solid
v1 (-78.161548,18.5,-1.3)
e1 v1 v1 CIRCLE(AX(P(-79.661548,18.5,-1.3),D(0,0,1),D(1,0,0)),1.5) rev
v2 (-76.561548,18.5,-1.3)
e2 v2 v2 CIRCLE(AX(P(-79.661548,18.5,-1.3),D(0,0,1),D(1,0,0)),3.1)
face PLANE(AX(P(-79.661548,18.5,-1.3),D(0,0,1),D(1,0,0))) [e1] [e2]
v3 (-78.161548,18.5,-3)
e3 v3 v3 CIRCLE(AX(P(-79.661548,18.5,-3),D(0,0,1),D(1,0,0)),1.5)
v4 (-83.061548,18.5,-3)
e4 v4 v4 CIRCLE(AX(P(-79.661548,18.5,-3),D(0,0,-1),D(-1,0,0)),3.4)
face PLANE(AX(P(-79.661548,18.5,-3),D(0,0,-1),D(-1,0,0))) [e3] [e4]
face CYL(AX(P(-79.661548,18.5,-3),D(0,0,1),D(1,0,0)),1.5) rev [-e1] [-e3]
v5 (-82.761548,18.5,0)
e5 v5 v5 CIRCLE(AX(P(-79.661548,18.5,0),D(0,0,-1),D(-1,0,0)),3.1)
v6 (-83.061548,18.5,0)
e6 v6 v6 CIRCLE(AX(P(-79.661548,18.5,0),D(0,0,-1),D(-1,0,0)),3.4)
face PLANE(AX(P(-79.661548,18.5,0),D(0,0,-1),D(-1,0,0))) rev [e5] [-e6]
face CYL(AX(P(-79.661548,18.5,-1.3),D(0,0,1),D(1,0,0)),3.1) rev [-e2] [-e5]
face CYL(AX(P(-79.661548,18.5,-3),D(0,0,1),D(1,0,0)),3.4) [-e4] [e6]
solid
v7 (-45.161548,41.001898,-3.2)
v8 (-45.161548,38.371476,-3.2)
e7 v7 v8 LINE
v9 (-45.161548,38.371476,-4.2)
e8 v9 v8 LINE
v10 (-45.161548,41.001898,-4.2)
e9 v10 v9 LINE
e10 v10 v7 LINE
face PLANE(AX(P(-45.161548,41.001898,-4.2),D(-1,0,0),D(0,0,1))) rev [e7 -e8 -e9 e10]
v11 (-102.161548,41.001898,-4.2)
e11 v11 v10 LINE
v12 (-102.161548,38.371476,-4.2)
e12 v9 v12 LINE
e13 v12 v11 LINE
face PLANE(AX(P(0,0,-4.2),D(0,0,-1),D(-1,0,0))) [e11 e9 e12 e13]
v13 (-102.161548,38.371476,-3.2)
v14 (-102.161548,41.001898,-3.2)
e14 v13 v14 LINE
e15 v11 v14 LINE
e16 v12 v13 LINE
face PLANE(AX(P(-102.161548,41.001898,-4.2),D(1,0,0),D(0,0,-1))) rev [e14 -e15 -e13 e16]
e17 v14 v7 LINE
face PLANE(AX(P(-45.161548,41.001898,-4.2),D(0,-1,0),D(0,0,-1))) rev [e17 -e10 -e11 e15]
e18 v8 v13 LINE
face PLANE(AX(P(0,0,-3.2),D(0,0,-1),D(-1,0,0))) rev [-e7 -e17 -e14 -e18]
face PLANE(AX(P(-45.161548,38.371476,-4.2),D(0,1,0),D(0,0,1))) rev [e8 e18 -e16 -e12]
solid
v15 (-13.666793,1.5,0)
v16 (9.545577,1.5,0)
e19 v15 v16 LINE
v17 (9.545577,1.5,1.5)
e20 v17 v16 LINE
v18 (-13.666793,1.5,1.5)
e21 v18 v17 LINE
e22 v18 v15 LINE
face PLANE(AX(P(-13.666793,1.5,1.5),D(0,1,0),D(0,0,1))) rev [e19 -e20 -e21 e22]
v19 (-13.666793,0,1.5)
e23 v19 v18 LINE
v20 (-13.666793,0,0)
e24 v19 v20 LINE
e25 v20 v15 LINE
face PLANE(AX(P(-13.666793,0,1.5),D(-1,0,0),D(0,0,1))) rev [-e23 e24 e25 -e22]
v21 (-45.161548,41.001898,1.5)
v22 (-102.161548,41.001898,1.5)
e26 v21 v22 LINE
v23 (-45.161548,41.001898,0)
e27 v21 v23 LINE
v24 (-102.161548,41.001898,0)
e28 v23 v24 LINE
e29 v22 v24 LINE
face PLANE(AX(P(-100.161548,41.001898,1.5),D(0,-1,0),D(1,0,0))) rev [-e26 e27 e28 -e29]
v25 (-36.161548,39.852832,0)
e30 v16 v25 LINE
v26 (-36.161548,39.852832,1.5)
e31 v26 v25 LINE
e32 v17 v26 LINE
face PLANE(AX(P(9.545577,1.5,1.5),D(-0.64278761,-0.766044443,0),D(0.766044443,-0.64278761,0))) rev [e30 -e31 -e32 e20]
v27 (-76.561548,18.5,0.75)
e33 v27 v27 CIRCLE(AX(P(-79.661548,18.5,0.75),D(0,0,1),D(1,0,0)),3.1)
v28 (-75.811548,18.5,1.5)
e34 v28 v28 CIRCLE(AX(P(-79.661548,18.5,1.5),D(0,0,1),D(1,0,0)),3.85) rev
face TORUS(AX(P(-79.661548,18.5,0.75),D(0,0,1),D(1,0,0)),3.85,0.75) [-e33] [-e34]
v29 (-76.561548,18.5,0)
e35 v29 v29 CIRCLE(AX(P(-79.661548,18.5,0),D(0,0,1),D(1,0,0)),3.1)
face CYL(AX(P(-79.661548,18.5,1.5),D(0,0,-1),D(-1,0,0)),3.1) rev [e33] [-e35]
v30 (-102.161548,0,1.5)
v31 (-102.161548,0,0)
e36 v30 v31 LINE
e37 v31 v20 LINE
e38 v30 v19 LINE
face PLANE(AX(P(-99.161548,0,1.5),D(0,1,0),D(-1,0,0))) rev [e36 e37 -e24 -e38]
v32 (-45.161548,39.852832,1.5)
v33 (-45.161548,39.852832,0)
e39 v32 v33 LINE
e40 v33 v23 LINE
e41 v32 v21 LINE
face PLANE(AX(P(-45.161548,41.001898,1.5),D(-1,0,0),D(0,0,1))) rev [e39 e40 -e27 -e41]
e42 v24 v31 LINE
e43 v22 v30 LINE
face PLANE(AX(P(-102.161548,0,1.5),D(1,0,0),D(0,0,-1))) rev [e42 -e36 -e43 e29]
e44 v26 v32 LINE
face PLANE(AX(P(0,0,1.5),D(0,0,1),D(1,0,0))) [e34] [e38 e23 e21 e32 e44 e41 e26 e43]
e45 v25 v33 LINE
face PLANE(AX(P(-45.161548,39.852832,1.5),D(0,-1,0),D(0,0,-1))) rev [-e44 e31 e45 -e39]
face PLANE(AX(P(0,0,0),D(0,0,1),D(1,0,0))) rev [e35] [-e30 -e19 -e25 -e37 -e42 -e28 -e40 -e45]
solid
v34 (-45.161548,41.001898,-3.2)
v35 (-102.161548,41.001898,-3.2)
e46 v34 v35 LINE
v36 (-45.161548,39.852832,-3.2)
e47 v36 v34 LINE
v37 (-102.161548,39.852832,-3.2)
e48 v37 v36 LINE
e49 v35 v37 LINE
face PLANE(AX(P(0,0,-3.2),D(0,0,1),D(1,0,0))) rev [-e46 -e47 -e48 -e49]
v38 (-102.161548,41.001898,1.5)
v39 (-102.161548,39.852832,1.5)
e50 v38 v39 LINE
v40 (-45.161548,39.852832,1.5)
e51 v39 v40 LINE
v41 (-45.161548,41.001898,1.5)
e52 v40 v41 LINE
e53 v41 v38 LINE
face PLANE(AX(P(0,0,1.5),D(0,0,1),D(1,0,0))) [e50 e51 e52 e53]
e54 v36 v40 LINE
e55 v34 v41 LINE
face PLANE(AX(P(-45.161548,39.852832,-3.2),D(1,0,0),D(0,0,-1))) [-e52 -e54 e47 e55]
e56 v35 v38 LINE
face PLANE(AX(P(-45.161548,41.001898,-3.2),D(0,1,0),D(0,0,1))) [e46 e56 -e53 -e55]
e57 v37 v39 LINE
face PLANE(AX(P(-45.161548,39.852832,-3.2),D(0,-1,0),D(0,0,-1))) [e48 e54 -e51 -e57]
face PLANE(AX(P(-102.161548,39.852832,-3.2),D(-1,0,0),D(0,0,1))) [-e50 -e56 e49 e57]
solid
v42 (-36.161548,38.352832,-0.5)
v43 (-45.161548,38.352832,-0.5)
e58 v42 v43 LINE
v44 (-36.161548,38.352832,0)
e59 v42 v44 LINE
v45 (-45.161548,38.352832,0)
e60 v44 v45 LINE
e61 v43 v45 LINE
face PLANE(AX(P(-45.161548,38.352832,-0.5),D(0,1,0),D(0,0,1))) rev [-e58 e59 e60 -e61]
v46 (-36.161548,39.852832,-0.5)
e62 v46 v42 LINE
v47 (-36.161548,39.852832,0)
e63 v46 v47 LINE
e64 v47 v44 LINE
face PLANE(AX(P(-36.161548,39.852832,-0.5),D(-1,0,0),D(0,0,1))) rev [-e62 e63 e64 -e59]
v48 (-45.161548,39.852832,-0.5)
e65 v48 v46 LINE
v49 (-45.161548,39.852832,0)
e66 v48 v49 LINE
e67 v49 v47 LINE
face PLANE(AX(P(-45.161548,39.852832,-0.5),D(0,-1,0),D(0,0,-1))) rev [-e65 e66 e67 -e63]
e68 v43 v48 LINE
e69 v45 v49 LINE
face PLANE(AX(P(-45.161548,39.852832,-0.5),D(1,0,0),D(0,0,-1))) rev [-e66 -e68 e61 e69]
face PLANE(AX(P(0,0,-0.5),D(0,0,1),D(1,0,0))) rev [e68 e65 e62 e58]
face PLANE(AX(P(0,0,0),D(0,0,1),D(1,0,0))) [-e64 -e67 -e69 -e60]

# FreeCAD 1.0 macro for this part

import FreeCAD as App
import Part
import Sketcher

V = App.Vector
Q = App.Units.Quantity


def edges_at(feature, points):
    """Names of the edges that pass closest to the given points."""
    edges = feature.Shape.Edges
    near = lambda p: min(range(len(edges)), key=lambda i: edges[i].distToShape(Part.Vertex(*p))[0])
    return sorted({f"Edge{near(p) + 1}" for p in points})


def add_polygon(sketch, points):
    """Adds a closed chain of lines whose ends are joined by coincident constraints."""
    first, n = sketch.GeometryCount, len(points)
    for a, b in zip(points, points[1:] + points[:1]):
        sketch.addGeometry(Part.LineSegment(App.Vector(*a, 0), App.Vector(*b, 0)), False)
    for i in range(n):
        sketch.addConstraint(Sketcher.Constraint("Coincident", first + i, 2, first + (i + 1) % n, 1))

doc = App.newDocument("Part")
body = doc.addObject("PartDesign::Body", "Body")

# Sketch on XY plane
sketch1 = body.newObject("Sketcher::SketchObject", "Sketch")
sketch1.AttachmentSupport = (doc.getObject("XY_Plane"), [""])
sketch1.MapMode = "FlatFace"
add_polygon(sketch1, [(-13.7, 0), (-13.7, 1.5), (9.5, 1.5), (-36.2, 39.9), (-45.2, 39.9), (-45.2, 41), (-102.2, 41), (-102.2, 0)])  # lines 0-7
sketch1.addGeometry(Part.Circle(V(-79.7, 18.5, 0), V(0, 0, 1), 3.1), False)  # 8
sketch1.addConstraint(Sketcher.Constraint("Vertical", 0))
sketch1.addConstraint(Sketcher.Constraint("Horizontal", 1))
sketch1.addConstraint(Sketcher.Constraint("Horizontal", 3))
sketch1.addConstraint(Sketcher.Constraint("Vertical", 4))
sketch1.addConstraint(Sketcher.Constraint("Horizontal", 5))
sketch1.addConstraint(Sketcher.Constraint("Vertical", 6))
sketch1.addConstraint(Sketcher.Constraint("Horizontal", 7))
sketch1.addConstraint(Sketcher.Constraint("PointOnObject", 6, 2, -1))
sketch1.addConstraint(Sketcher.Constraint("Diameter", 8, 6.2))
sketch1.addConstraint(Sketcher.Constraint("DistanceX", 3, 2, 3, 1, 9.0))
sketch1.addConstraint(Sketcher.Constraint("DistanceX", 5, 2, 5, 1, 57.0))
sketch1.addConstraint(Sketcher.Constraint("Angle", 2, Q("140 deg")))
sketch1.addConstraint(Sketcher.Constraint("DistanceY", 0, 1, 0, 2, 1.5))
sketch1.addConstraint(Sketcher.Constraint("DistanceY", 0, 2, 8, 3, 17.0))
sketch1.addConstraint(Sketcher.Constraint("DistanceX", 8, 3, 2, 2, 43.5))
sketch1.addConstraint(Sketcher.Constraint("DistanceY", 6, 2, 6, 1, 41.001898))
sketch1.addConstraint(Sketcher.Constraint("DistanceX", 1, 1, 1, 2, 23.21237))
sketch1.addConstraint(Sketcher.Constraint("DistanceX", 7, 1, 7, 2, 88.494755))
sketch1.addConstraint(Sketcher.Constraint("DistanceX", 8, 3, -1, 1, 79.661548))
pad1 = body.newObject("PartDesign::Pad", "Pad")
pad1.Profile = sketch1
pad1.Length = 1.5
doc.recompute()

fillet = body.newObject("PartDesign::Fillet", "Fillet")
fillet.Base = (pad1, edges_at(pad1, [(-82.762, 18.5, 1.5)]))
fillet.Radius = 0.75
body2 = doc.addObject("PartDesign::Body", "Body001")

# Sketch on XY plane
sketch2 = body2.newObject("Sketcher::SketchObject", "Sketch001")
sketch2.AttachmentSupport = (doc.getObject("XY_Plane001"), [""])
sketch2.MapMode = "FlatFace"
sketch2.addGeometry(Part.Circle(V(-79.7, 18.5, 0), V(0, 0, 1), 3.4), False)
sketch2.addConstraint(Sketcher.Constraint("Diameter", 0, 6.8))
sketch2.addConstraint(Sketcher.Constraint("DistanceY", -1, 1, 0, 3, 18.5))
sketch2.addConstraint(Sketcher.Constraint("DistanceX", 0, 3, -1, 1, 79.661548))
pad2 = body2.newObject("PartDesign::Pad", "Pad001")
pad2.Profile = sketch2
pad2.Length = 3
pad2.Reversed = True

# Sketch on XY plane
sketch3 = body2.newObject("Sketcher::SketchObject", "Sketch002")
sketch3.AttachmentSupport = (doc.getObject("XY_Plane001"), [""])
sketch3.MapMode = "FlatFace"
sketch3.addGeometry(Part.Circle(V(-79.7, 18.5, 0), V(0, 0, 1), 1.5), False)
sketch3.addConstraint(Sketcher.Constraint("Diameter", 0, 3.0))
sketch3.addConstraint(Sketcher.Constraint("DistanceY", -1, 1, 0, 3, 18.5))
sketch3.addConstraint(Sketcher.Constraint("DistanceX", 0, 3, -1, 1, 79.661548))
pocket1 = body2.newObject("PartDesign::Pocket", "Pocket")
pocket1.Profile = sketch3
pocket1.Length = 3

# Sketch on XY plane
sketch4 = body2.newObject("Sketcher::SketchObject", "Sketch003")
sketch4.AttachmentSupport = (doc.getObject("XY_Plane001"), [""])
sketch4.MapMode = "FlatFace"
sketch4.AttachmentOffset = App.Placement(V(0, 0, -1.3), App.Rotation())
sketch4.addGeometry(Part.Circle(V(-79.7, 18.5, 0), V(0, 0, 1), 3.1), False)
sketch4.addConstraint(Sketcher.Constraint("Diameter", 0, 6.2))
sketch4.addConstraint(Sketcher.Constraint("DistanceY", -1, 1, 0, 3, 18.5))
sketch4.addConstraint(Sketcher.Constraint("DistanceX", 0, 3, -1, 1, 79.661548))
pocket2 = body2.newObject("PartDesign::Pocket", "Pocket001")
pocket2.Profile = sketch4
pocket2.Length = 2.8
pocket2.Reversed = True
body3 = doc.addObject("PartDesign::Body", "Body002")

# Sketch on XY plane
sketch5 = body3.newObject("Sketcher::SketchObject", "Sketch004")
sketch5.AttachmentSupport = (doc.getObject("XY_Plane002"), [""])
sketch5.MapMode = "FlatFace"
sketch5.AttachmentOffset = App.Placement(V(0, 0, 1.5), App.Rotation())
add_polygon(sketch5, [(-102.2, 41), (-102.2, 39.9), (-45.2, 39.9), (-45.2, 41)])  # lines 0-3
sketch5.addConstraint(Sketcher.Constraint("Vertical", 0))
sketch5.addConstraint(Sketcher.Constraint("Horizontal", 1))
sketch5.addConstraint(Sketcher.Constraint("Vertical", 2))
sketch5.addConstraint(Sketcher.Constraint("Horizontal", 3))
sketch5.addConstraint(Sketcher.Constraint("DistanceX", 1, 1, 1, 2, 57.0))
sketch5.addConstraint(Sketcher.Constraint("DistanceY", -1, 1, 2, 2, 41.001898))
sketch5.addConstraint(Sketcher.Constraint("DistanceY", 0, 2, 0, 1, 1.149067))
sketch5.addConstraint(Sketcher.Constraint("DistanceX", 0, 2, -1, 1, 102.161548))
pad3 = body3.newObject("PartDesign::Pad", "Pad002")
pad3.Profile = sketch5
pad3.Length = 4.7
pad3.Reversed = True
body4 = doc.addObject("PartDesign::Body", "Body003")

# Sketch on XY plane
sketch6 = body4.newObject("Sketcher::SketchObject", "Sketch005")
sketch6.AttachmentSupport = (doc.getObject("XY_Plane003"), [""])
sketch6.MapMode = "FlatFace"
add_polygon(sketch6, [(-36.2, 39.9), (-36.2, 38.4), (-45.2, 38.4), (-45.2, 39.9)])  # lines 0-3
sketch6.addConstraint(Sketcher.Constraint("Vertical", 0))
sketch6.addConstraint(Sketcher.Constraint("Horizontal", 1))
sketch6.addConstraint(Sketcher.Constraint("Vertical", 2))
sketch6.addConstraint(Sketcher.Constraint("Horizontal", 3))
sketch6.addConstraint(Sketcher.Constraint("DistanceX", 1, 2, 1, 1, 9.0))
sketch6.addConstraint(Sketcher.Constraint("DistanceY", 0, 2, 0, 1, 1.5))
sketch6.addConstraint(Sketcher.Constraint("DistanceX", 0, 2, -1, 1, 36.161548))
sketch6.addConstraint(Sketcher.Constraint("DistanceY", -1, 1, 0, 2, 38.352832))
pad4 = body4.newObject("PartDesign::Pad", "Pad003")
pad4.Profile = sketch6
pad4.Length = 0.5
pad4.Reversed = True
body5 = doc.addObject("PartDesign::Body", "Body004")

# Sketch on XY plane
sketch7 = body5.newObject("Sketcher::SketchObject", "Sketch006")
sketch7.AttachmentSupport = (doc.getObject("XY_Plane004"), [""])
sketch7.MapMode = "FlatFace"
sketch7.AttachmentOffset = App.Placement(V(0, 0, -3.2), App.Rotation())
add_polygon(sketch7, [(-45.2, 41), (-45.2, 38.4), (-102.2, 38.4), (-102.2, 41)])  # lines 0-3
sketch7.addConstraint(Sketcher.Constraint("Vertical", 0))
sketch7.addConstraint(Sketcher.Constraint("Horizontal", 1))
sketch7.addConstraint(Sketcher.Constraint("Vertical", 2))
sketch7.addConstraint(Sketcher.Constraint("Horizontal", 3))
sketch7.addConstraint(Sketcher.Constraint("DistanceX", 1, 2, 1, 1, 57.0))
sketch7.addConstraint(Sketcher.Constraint("DistanceY", -1, 1, 2, 2, 41.001898))
sketch7.addConstraint(Sketcher.Constraint("DistanceY", 0, 2, 0, 1, 2.630423))
sketch7.addConstraint(Sketcher.Constraint("DistanceX", 0, 2, -1, 1, 45.161548))
pad5 = body5.newObject("PartDesign::Pad", "Pad004")
pad5.Profile = sketch7
pad5.Length = 1
pad5.Reversed = True

doc.recompute()
